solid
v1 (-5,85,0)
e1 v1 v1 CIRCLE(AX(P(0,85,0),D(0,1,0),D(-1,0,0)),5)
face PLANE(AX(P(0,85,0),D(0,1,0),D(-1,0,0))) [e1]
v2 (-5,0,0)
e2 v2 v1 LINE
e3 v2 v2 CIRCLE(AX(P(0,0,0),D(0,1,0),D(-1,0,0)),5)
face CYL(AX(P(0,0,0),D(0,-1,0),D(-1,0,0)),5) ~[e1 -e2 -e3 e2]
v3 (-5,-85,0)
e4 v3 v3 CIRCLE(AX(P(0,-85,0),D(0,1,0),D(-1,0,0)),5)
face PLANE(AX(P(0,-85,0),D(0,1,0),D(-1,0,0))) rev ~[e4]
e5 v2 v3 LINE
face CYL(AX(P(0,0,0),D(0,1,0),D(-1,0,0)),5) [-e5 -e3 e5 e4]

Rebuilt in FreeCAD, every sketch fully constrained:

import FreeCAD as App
import Part
import Sketcher

doc = App.newDocument("Part")
body = doc.addObject("PartDesign::Body", "Body")

sketch1 = body.newObject("Sketcher::SketchObject", "Sketch")
sketch1.AttachmentSupport = (doc.getObject("XZ_Plane"), [""])
sketch1.MapMode = "FlatFace"
sketch1.addGeometry(Part.Circle(App.Vector(0, 0, 0), App.Vector(0, 0, 1), 5), False)
sketch1.addConstraint(Sketcher.Constraint("Coincident", 0, 3, -1, 1))
sketch1.addConstraint(Sketcher.Constraint("Diameter", 0, 10.0))
pad1 = body.newObject("PartDesign::Pad", "Pad")
pad1.Profile = sketch1
pad1.Length = 170
pad1.Midplane = True

doc.recompute()
